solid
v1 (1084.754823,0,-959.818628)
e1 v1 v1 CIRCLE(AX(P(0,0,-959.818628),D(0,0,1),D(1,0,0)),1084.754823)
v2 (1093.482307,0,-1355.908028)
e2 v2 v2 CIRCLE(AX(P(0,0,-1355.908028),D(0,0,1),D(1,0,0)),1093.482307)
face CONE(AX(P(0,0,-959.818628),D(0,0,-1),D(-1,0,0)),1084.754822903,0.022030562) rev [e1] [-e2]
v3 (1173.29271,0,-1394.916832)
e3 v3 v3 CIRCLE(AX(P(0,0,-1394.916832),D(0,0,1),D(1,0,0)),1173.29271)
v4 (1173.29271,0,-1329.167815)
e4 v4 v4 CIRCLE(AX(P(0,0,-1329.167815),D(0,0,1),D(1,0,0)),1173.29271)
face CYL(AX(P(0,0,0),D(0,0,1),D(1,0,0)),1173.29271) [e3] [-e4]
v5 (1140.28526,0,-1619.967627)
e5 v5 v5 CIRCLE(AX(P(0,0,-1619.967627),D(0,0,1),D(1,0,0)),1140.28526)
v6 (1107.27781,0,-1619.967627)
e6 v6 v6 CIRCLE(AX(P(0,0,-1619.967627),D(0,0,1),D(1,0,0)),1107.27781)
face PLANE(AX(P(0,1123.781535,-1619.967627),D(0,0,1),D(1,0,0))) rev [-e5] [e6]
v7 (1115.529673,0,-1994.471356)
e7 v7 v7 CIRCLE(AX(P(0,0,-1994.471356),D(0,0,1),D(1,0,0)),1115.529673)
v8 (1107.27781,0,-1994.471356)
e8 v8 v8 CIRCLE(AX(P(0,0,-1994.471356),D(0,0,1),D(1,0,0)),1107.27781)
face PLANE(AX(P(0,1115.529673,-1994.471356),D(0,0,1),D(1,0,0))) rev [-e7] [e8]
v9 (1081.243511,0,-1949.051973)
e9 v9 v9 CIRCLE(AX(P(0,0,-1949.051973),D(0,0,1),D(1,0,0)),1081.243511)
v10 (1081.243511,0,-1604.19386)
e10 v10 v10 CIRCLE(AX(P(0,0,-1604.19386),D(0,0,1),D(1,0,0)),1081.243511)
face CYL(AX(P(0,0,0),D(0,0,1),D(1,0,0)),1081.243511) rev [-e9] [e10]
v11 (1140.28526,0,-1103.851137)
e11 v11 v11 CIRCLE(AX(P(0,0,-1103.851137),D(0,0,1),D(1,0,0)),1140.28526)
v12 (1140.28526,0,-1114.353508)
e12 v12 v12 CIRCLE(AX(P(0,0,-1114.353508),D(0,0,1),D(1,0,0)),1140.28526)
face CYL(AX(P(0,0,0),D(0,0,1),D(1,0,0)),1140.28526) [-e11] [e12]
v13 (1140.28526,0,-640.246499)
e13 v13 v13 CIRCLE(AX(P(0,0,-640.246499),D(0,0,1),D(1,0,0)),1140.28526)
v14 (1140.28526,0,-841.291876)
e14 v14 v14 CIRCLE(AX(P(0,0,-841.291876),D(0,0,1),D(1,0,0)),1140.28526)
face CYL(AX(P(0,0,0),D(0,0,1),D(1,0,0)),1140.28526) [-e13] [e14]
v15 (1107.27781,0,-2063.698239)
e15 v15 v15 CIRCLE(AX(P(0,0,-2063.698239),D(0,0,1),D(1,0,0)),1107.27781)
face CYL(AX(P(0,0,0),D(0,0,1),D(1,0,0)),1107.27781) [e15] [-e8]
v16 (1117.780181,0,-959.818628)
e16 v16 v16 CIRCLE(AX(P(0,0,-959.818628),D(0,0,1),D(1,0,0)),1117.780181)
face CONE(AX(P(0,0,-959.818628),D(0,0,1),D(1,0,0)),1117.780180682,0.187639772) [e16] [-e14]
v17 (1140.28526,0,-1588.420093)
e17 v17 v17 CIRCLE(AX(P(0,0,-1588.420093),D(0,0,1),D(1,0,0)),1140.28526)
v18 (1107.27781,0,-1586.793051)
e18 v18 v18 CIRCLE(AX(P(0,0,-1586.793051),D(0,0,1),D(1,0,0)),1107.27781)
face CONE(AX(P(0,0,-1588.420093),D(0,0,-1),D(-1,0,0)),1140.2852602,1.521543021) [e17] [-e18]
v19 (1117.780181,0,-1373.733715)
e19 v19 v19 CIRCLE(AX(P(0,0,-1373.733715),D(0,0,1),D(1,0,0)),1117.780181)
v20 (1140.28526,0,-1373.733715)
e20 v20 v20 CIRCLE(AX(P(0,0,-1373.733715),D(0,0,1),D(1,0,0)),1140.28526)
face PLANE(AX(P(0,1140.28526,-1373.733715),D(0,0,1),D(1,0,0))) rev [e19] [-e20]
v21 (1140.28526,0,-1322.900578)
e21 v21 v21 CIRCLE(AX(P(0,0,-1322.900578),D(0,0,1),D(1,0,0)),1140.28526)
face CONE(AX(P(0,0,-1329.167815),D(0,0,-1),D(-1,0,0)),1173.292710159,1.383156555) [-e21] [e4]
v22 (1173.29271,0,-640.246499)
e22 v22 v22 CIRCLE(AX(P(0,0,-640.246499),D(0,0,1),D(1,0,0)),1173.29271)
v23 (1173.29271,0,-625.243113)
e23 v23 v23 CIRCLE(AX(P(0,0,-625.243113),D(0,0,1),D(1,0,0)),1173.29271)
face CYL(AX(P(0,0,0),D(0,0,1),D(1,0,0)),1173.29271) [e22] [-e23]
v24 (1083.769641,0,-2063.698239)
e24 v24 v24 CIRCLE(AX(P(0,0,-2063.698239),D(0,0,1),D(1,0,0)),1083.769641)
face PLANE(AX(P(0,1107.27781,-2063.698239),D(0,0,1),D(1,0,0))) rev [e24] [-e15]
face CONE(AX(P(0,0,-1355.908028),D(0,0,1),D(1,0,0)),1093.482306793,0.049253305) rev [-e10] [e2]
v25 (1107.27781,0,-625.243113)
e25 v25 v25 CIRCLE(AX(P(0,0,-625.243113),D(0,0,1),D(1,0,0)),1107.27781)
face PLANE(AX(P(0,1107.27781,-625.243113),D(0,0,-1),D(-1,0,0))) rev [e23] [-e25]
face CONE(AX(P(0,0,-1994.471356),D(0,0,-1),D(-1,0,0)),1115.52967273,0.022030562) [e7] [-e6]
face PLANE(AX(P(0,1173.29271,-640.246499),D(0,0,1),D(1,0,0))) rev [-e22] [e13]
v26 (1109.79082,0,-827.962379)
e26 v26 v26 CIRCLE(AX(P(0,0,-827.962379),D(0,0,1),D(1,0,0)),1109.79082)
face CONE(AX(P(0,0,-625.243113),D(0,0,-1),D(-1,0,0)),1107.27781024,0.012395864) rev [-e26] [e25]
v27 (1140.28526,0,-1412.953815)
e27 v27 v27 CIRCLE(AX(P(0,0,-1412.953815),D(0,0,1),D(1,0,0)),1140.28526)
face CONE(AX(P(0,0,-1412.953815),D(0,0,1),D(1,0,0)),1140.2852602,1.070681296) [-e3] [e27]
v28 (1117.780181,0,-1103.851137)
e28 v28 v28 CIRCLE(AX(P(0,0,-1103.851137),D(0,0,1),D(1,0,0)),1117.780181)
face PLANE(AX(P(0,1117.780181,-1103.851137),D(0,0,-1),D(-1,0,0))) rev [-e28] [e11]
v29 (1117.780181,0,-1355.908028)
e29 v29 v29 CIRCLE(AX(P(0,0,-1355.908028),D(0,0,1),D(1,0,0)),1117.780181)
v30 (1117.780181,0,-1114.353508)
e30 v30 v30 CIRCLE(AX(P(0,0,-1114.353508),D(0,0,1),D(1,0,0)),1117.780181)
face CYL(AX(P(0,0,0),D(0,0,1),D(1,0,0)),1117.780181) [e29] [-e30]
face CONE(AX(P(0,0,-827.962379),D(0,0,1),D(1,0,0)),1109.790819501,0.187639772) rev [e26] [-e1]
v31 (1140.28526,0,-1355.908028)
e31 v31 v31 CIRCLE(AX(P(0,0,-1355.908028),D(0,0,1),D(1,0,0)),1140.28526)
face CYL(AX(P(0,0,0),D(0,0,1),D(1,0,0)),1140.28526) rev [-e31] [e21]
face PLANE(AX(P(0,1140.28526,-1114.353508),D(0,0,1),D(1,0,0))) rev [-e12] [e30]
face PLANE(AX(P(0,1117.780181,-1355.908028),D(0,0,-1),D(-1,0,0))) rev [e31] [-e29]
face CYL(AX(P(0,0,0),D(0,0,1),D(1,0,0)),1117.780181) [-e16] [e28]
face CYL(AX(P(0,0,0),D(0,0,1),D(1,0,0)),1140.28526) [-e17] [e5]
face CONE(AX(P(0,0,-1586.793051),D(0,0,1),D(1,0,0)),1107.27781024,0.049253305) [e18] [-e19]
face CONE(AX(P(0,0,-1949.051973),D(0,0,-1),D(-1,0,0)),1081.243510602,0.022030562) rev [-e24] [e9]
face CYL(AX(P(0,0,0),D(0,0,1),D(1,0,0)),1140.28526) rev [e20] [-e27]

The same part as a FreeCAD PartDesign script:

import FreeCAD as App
import Part
import Sketcher

V = App.Vector

doc = App.newDocument("Part")
body = doc.addObject("PartDesign::Body", "Body")

sketch1 = doc.addObject("Sketcher::SketchObject", "Sketch")
body.addObject(sketch1)
sketch1.AttachmentSupport = (doc.YZ_Plane, [""])
sketch1.MapMode = "FlatFace"
sketch1.addGeometry([
    Part.LineSegment(V(1173.29271, -625.243113, 0), V(1107.27781, -625.243113, 0)),
    Part.LineSegment(V(1107.27781, -625.243113, 0), V(1109.79082, -827.962379, 0)),
    Part.LineSegment(V(1109.79082, -827.962379, 0), V(1084.754823, -959.818628, 0)),
    Part.LineSegment(V(1084.754823, -959.818628, 0), V(1093.482307, -1355.908028, 0)),
    Part.LineSegment(V(1093.482307, -1355.908028, 0), V(1081.243511, -1604.19386, 0)),
    Part.LineSegment(V(1081.243511, -1604.19386, 0), V(1081.243511, -1949.051973, 0)),
    Part.LineSegment(V(1081.243511, -1949.051973, 0), V(1083.769641, -2063.698239, 0)),
    Part.LineSegment(V(1083.769641, -2063.698239, 0), V(1107.27781, -2063.698239, 0)),
    Part.LineSegment(V(1107.27781, -2063.698239, 0), V(1107.27781, -1994.471356, 0)),
    Part.LineSegment(V(1107.27781, -1994.471356, 0), V(1115.529673, -1994.471356, 0)),
    Part.LineSegment(V(1115.529673, -1994.471356, 0), V(1107.27781, -1619.967627, 0)),
    Part.LineSegment(V(1107.27781, -1619.967627, 0), V(1140.28526, -1619.967627, 0)),
    Part.LineSegment(V(1140.28526, -1619.967627, 0), V(1140.28526, -1588.420093, 0)),
    Part.LineSegment(V(1140.28526, -1588.420093, 0), V(1107.27781, -1586.793051, 0)),
    Part.LineSegment(V(1107.27781, -1586.793051, 0), V(1117.780181, -1373.733715, 0)),
    Part.LineSegment(V(1117.780181, -1373.733715, 0), V(1140.28526, -1373.733715, 0)),
    Part.LineSegment(V(1140.28526, -1373.733715, 0), V(1140.28526, -1412.953815, 0)),
    Part.LineSegment(V(1140.28526, -1412.953815, 0), V(1173.29271, -1394.916832, 0)),
    Part.LineSegment(V(1173.29271, -1394.916832, 0), V(1173.29271, -1329.167815, 0)),
    Part.LineSegment(V(1173.29271, -1329.167815, 0), V(1140.28526, -1322.900578, 0)),
    Part.LineSegment(V(1140.28526, -1322.900578, 0), V(1140.28526, -1355.908028, 0)),
    Part.LineSegment(V(1140.28526, -1355.908028, 0), V(1117.780181, -1355.908028, 0)),
    Part.LineSegment(V(1117.780181, -1355.908028, 0), V(1117.780181, -1114.353508, 0)),
    Part.LineSegment(V(1117.780181, -1114.353508, 0), V(1140.28526, -1114.353508, 0)),
    Part.LineSegment(V(1140.28526, -1114.353508, 0), V(1140.28526, -1103.851137, 0)),
    Part.LineSegment(V(1140.28526, -1103.851137, 0), V(1117.780181, -1103.851137, 0)),
    Part.LineSegment(V(1117.780181, -1103.851137, 0), V(1117.780181, -959.818628, 0)),
    Part.LineSegment(V(1117.780181, -959.818628, 0), V(1140.28526, -841.291876, 0)),
    Part.LineSegment(V(1140.28526, -841.291876, 0), V(1140.28526, -640.246499, 0)),
    Part.LineSegment(V(1140.28526, -640.246499, 0), V(1173.29271, -640.246499, 0)),
    Part.LineSegment(V(1173.29271, -640.246499, 0), V(1173.29271, -625.243113, 0)),
], False)
sketch1.addConstraint([
    Sketcher.Constraint("Coincident", 0, 2, 1, 1),
    Sketcher.Constraint("Coincident", 1, 2, 2, 1),
    Sketcher.Constraint("Coincident", 2, 2, 3, 1),
    Sketcher.Constraint("Coincident", 3, 2, 4, 1),
    Sketcher.Constraint("Coincident", 4, 2, 5, 1),
    Sketcher.Constraint("Coincident", 5, 2, 6, 1),
    Sketcher.Constraint("Coincident", 6, 2, 7, 1),
    Sketcher.Constraint("Coincident", 7, 2, 8, 1),
    Sketcher.Constraint("Coincident", 8, 2, 9, 1),
    Sketcher.Constraint("Coincident", 9, 2, 10, 1),
    Sketcher.Constraint("Coincident", 10, 2, 11, 1),
    Sketcher.Constraint("Coincident", 11, 2, 12, 1),
    Sketcher.Constraint("Coincident", 12, 2, 13, 1),
    Sketcher.Constraint("Coincident", 13, 2, 14, 1),
    Sketcher.Constraint("Coincident", 14, 2, 15, 1),
    Sketcher.Constraint("Coincident", 15, 2, 16, 1),
    Sketcher.Constraint("Coincident", 16, 2, 17, 1),
    Sketcher.Constraint("Coincident", 17, 2, 18, 1),
    Sketcher.Constraint("Coincident", 18, 2, 19, 1),
    Sketcher.Constraint("Coincident", 19, 2, 20, 1),
    Sketcher.Constraint("Coincident", 20, 2, 21, 1),
    Sketcher.Constraint("Coincident", 21, 2, 22, 1),
    Sketcher.Constraint("Coincident", 22, 2, 23, 1),
    Sketcher.Constraint("Coincident", 23, 2, 24, 1),
    Sketcher.Constraint("Coincident", 24, 2, 25, 1),
    Sketcher.Constraint("Coincident", 25, 2, 26, 1),
    Sketcher.Constraint("Coincident", 26, 2, 27, 1),
    Sketcher.Constraint("Coincident", 27, 2, 28, 1),
    Sketcher.Constraint("Coincident", 28, 2, 29, 1),
    Sketcher.Constraint("Coincident", 29, 2, 30, 1),
    Sketcher.Constraint("Coincident", 30, 2, 0, 1),
    Sketcher.Constraint("Horizontal", 0),
    Sketcher.Constraint("Vertical", 5),
    Sketcher.Constraint("Horizontal", 7),
    Sketcher.Constraint("Vertical", 8),
    Sketcher.Constraint("Horizontal", 9),
    Sketcher.Constraint("Horizontal", 11),
    Sketcher.Constraint("Vertical", 12),
    Sketcher.Constraint("Horizontal", 15),
    Sketcher.Constraint("Vertical", 16),
    Sketcher.Constraint("Vertical", 18),
    Sketcher.Constraint("Vertical", 20),
    Sketcher.Constraint("Horizontal", 21),
    Sketcher.Constraint("Vertical", 22),
    Sketcher.Constraint("Horizontal", 23),
    Sketcher.Constraint("Vertical", 24),
    Sketcher.Constraint("Horizontal", 25),
    Sketcher.Constraint("Vertical", 26),
    Sketcher.Constraint("Vertical", 28),
    Sketcher.Constraint("Horizontal", 29),
    Sketcher.Constraint("Vertical", 30),
    Sketcher.Constraint("Parallel", 3, 6),
    Sketcher.Constraint("Parallel", 6, 10),
    Sketcher.Constraint("Perpendicular", 4, 13),
    Sketcher.Constraint("Perpendicular", 13, 14),
    Sketcher.Constraint("Perpendicular", 2, 19),
    Sketcher.Constraint("Perpendicular", 19, 27),
    Sketcher.Constraint("Horizontal", 3, 2, 20, 2),
    Sketcher.Constraint("Horizontal", 2, 2, 26, 2),
    Sketcher.Constraint("Vertical", 0, 2, 7, 2),
    Sketcher.Constraint("Vertical", 8, 2, 10, 2),
    Sketcher.Constraint("Vertical", 10, 2, 13, 2),
    Sketcher.Constraint("Vertical", 12, 2, 15, 2),
    Sketcher.Constraint("Vertical", 16, 2, 19, 2),
    Sketcher.Constraint("Vertical", 14, 2, 21, 2),
    Sketcher.Constraint("Vertical", 20, 2, 23, 2),
    Sketcher.Constraint("Vertical", 22, 2, 25, 2),
    Sketcher.Constraint("Vertical", 24, 2, 27, 2),
    Sketcher.Constraint("Vertical", 18, 2, 29, 2),
    Sketcher.Constraint("Equal", 11, 29),
    Sketcher.Constraint("Equal", 29, 20),
    Sketcher.Constraint("DistanceX", 0, 2, 0, 1, 66.0149),
    Sketcher.Constraint("DistanceY", 16, 2, 16, 1, 39.220099),
    Sketcher.Constraint("DistanceY", 16, 2, 18, 2, 83.786),
    Sketcher.Constraint("DistanceX", 7, 1, 7, 2, 23.508169),
    Sketcher.Constraint("DistanceX", 15, 1, 15, 2, 22.50508),
    Sketcher.Constraint("DistanceY", 22, 1, 22, 2, 241.55452),
    Sketcher.Constraint("DistanceY", 24, 1, 24, 2, 10.50237),
    Sketcher.Constraint("DistanceY", 26, 1, 26, 2, 144.032509),
    Sketcher.Constraint("DistanceY", 28, 2, -1, 1, 640.246499),
    Sketcher.Constraint("DistanceX", 4, 2, 0, 2, 26.0343),
    Sketcher.Constraint("DistanceY", 10, 2, 3, 2, 264.0596),
    Sketcher.Constraint("Distance", 2, 134.212039),
    Sketcher.Constraint("Distance", 10, 374.594629),
    Sketcher.Constraint("DistanceX", 9, 1, 9, 2, 8.251862),
    Sketcher.Constraint("DistanceY", 5, 2, 5, 1, 344.858113),
    Sketcher.Constraint("DistanceY", 8, 1, 8, 2, 69.226883),
    Sketcher.Constraint("DistanceY", 12, 1, 12, 2, 31.547534),
    Sketcher.Constraint("DistanceY", 18, 1, 18, 2, 65.749017),
    Sketcher.Constraint("DistanceY", 28, 1, 28, 2, 201.045377),
    Sketcher.Constraint("DistanceY", 30, 1, 30, 2, 15.003386),
    Sketcher.Constraint("DistanceX", -1, 1, 0, 2, 1107.27781),
    Sketcher.Constraint("DistanceX", -1, 1, 1, 2, 1109.79082),
])
revolution = doc.addObject("PartDesign::Revolution", "Revolution")
body.addObject(revolution)
revolution.Profile = sketch1
revolution.ReferenceAxis = (sketch1, ["V_Axis"])
revolution.Angle = 360

doc.recompute()
